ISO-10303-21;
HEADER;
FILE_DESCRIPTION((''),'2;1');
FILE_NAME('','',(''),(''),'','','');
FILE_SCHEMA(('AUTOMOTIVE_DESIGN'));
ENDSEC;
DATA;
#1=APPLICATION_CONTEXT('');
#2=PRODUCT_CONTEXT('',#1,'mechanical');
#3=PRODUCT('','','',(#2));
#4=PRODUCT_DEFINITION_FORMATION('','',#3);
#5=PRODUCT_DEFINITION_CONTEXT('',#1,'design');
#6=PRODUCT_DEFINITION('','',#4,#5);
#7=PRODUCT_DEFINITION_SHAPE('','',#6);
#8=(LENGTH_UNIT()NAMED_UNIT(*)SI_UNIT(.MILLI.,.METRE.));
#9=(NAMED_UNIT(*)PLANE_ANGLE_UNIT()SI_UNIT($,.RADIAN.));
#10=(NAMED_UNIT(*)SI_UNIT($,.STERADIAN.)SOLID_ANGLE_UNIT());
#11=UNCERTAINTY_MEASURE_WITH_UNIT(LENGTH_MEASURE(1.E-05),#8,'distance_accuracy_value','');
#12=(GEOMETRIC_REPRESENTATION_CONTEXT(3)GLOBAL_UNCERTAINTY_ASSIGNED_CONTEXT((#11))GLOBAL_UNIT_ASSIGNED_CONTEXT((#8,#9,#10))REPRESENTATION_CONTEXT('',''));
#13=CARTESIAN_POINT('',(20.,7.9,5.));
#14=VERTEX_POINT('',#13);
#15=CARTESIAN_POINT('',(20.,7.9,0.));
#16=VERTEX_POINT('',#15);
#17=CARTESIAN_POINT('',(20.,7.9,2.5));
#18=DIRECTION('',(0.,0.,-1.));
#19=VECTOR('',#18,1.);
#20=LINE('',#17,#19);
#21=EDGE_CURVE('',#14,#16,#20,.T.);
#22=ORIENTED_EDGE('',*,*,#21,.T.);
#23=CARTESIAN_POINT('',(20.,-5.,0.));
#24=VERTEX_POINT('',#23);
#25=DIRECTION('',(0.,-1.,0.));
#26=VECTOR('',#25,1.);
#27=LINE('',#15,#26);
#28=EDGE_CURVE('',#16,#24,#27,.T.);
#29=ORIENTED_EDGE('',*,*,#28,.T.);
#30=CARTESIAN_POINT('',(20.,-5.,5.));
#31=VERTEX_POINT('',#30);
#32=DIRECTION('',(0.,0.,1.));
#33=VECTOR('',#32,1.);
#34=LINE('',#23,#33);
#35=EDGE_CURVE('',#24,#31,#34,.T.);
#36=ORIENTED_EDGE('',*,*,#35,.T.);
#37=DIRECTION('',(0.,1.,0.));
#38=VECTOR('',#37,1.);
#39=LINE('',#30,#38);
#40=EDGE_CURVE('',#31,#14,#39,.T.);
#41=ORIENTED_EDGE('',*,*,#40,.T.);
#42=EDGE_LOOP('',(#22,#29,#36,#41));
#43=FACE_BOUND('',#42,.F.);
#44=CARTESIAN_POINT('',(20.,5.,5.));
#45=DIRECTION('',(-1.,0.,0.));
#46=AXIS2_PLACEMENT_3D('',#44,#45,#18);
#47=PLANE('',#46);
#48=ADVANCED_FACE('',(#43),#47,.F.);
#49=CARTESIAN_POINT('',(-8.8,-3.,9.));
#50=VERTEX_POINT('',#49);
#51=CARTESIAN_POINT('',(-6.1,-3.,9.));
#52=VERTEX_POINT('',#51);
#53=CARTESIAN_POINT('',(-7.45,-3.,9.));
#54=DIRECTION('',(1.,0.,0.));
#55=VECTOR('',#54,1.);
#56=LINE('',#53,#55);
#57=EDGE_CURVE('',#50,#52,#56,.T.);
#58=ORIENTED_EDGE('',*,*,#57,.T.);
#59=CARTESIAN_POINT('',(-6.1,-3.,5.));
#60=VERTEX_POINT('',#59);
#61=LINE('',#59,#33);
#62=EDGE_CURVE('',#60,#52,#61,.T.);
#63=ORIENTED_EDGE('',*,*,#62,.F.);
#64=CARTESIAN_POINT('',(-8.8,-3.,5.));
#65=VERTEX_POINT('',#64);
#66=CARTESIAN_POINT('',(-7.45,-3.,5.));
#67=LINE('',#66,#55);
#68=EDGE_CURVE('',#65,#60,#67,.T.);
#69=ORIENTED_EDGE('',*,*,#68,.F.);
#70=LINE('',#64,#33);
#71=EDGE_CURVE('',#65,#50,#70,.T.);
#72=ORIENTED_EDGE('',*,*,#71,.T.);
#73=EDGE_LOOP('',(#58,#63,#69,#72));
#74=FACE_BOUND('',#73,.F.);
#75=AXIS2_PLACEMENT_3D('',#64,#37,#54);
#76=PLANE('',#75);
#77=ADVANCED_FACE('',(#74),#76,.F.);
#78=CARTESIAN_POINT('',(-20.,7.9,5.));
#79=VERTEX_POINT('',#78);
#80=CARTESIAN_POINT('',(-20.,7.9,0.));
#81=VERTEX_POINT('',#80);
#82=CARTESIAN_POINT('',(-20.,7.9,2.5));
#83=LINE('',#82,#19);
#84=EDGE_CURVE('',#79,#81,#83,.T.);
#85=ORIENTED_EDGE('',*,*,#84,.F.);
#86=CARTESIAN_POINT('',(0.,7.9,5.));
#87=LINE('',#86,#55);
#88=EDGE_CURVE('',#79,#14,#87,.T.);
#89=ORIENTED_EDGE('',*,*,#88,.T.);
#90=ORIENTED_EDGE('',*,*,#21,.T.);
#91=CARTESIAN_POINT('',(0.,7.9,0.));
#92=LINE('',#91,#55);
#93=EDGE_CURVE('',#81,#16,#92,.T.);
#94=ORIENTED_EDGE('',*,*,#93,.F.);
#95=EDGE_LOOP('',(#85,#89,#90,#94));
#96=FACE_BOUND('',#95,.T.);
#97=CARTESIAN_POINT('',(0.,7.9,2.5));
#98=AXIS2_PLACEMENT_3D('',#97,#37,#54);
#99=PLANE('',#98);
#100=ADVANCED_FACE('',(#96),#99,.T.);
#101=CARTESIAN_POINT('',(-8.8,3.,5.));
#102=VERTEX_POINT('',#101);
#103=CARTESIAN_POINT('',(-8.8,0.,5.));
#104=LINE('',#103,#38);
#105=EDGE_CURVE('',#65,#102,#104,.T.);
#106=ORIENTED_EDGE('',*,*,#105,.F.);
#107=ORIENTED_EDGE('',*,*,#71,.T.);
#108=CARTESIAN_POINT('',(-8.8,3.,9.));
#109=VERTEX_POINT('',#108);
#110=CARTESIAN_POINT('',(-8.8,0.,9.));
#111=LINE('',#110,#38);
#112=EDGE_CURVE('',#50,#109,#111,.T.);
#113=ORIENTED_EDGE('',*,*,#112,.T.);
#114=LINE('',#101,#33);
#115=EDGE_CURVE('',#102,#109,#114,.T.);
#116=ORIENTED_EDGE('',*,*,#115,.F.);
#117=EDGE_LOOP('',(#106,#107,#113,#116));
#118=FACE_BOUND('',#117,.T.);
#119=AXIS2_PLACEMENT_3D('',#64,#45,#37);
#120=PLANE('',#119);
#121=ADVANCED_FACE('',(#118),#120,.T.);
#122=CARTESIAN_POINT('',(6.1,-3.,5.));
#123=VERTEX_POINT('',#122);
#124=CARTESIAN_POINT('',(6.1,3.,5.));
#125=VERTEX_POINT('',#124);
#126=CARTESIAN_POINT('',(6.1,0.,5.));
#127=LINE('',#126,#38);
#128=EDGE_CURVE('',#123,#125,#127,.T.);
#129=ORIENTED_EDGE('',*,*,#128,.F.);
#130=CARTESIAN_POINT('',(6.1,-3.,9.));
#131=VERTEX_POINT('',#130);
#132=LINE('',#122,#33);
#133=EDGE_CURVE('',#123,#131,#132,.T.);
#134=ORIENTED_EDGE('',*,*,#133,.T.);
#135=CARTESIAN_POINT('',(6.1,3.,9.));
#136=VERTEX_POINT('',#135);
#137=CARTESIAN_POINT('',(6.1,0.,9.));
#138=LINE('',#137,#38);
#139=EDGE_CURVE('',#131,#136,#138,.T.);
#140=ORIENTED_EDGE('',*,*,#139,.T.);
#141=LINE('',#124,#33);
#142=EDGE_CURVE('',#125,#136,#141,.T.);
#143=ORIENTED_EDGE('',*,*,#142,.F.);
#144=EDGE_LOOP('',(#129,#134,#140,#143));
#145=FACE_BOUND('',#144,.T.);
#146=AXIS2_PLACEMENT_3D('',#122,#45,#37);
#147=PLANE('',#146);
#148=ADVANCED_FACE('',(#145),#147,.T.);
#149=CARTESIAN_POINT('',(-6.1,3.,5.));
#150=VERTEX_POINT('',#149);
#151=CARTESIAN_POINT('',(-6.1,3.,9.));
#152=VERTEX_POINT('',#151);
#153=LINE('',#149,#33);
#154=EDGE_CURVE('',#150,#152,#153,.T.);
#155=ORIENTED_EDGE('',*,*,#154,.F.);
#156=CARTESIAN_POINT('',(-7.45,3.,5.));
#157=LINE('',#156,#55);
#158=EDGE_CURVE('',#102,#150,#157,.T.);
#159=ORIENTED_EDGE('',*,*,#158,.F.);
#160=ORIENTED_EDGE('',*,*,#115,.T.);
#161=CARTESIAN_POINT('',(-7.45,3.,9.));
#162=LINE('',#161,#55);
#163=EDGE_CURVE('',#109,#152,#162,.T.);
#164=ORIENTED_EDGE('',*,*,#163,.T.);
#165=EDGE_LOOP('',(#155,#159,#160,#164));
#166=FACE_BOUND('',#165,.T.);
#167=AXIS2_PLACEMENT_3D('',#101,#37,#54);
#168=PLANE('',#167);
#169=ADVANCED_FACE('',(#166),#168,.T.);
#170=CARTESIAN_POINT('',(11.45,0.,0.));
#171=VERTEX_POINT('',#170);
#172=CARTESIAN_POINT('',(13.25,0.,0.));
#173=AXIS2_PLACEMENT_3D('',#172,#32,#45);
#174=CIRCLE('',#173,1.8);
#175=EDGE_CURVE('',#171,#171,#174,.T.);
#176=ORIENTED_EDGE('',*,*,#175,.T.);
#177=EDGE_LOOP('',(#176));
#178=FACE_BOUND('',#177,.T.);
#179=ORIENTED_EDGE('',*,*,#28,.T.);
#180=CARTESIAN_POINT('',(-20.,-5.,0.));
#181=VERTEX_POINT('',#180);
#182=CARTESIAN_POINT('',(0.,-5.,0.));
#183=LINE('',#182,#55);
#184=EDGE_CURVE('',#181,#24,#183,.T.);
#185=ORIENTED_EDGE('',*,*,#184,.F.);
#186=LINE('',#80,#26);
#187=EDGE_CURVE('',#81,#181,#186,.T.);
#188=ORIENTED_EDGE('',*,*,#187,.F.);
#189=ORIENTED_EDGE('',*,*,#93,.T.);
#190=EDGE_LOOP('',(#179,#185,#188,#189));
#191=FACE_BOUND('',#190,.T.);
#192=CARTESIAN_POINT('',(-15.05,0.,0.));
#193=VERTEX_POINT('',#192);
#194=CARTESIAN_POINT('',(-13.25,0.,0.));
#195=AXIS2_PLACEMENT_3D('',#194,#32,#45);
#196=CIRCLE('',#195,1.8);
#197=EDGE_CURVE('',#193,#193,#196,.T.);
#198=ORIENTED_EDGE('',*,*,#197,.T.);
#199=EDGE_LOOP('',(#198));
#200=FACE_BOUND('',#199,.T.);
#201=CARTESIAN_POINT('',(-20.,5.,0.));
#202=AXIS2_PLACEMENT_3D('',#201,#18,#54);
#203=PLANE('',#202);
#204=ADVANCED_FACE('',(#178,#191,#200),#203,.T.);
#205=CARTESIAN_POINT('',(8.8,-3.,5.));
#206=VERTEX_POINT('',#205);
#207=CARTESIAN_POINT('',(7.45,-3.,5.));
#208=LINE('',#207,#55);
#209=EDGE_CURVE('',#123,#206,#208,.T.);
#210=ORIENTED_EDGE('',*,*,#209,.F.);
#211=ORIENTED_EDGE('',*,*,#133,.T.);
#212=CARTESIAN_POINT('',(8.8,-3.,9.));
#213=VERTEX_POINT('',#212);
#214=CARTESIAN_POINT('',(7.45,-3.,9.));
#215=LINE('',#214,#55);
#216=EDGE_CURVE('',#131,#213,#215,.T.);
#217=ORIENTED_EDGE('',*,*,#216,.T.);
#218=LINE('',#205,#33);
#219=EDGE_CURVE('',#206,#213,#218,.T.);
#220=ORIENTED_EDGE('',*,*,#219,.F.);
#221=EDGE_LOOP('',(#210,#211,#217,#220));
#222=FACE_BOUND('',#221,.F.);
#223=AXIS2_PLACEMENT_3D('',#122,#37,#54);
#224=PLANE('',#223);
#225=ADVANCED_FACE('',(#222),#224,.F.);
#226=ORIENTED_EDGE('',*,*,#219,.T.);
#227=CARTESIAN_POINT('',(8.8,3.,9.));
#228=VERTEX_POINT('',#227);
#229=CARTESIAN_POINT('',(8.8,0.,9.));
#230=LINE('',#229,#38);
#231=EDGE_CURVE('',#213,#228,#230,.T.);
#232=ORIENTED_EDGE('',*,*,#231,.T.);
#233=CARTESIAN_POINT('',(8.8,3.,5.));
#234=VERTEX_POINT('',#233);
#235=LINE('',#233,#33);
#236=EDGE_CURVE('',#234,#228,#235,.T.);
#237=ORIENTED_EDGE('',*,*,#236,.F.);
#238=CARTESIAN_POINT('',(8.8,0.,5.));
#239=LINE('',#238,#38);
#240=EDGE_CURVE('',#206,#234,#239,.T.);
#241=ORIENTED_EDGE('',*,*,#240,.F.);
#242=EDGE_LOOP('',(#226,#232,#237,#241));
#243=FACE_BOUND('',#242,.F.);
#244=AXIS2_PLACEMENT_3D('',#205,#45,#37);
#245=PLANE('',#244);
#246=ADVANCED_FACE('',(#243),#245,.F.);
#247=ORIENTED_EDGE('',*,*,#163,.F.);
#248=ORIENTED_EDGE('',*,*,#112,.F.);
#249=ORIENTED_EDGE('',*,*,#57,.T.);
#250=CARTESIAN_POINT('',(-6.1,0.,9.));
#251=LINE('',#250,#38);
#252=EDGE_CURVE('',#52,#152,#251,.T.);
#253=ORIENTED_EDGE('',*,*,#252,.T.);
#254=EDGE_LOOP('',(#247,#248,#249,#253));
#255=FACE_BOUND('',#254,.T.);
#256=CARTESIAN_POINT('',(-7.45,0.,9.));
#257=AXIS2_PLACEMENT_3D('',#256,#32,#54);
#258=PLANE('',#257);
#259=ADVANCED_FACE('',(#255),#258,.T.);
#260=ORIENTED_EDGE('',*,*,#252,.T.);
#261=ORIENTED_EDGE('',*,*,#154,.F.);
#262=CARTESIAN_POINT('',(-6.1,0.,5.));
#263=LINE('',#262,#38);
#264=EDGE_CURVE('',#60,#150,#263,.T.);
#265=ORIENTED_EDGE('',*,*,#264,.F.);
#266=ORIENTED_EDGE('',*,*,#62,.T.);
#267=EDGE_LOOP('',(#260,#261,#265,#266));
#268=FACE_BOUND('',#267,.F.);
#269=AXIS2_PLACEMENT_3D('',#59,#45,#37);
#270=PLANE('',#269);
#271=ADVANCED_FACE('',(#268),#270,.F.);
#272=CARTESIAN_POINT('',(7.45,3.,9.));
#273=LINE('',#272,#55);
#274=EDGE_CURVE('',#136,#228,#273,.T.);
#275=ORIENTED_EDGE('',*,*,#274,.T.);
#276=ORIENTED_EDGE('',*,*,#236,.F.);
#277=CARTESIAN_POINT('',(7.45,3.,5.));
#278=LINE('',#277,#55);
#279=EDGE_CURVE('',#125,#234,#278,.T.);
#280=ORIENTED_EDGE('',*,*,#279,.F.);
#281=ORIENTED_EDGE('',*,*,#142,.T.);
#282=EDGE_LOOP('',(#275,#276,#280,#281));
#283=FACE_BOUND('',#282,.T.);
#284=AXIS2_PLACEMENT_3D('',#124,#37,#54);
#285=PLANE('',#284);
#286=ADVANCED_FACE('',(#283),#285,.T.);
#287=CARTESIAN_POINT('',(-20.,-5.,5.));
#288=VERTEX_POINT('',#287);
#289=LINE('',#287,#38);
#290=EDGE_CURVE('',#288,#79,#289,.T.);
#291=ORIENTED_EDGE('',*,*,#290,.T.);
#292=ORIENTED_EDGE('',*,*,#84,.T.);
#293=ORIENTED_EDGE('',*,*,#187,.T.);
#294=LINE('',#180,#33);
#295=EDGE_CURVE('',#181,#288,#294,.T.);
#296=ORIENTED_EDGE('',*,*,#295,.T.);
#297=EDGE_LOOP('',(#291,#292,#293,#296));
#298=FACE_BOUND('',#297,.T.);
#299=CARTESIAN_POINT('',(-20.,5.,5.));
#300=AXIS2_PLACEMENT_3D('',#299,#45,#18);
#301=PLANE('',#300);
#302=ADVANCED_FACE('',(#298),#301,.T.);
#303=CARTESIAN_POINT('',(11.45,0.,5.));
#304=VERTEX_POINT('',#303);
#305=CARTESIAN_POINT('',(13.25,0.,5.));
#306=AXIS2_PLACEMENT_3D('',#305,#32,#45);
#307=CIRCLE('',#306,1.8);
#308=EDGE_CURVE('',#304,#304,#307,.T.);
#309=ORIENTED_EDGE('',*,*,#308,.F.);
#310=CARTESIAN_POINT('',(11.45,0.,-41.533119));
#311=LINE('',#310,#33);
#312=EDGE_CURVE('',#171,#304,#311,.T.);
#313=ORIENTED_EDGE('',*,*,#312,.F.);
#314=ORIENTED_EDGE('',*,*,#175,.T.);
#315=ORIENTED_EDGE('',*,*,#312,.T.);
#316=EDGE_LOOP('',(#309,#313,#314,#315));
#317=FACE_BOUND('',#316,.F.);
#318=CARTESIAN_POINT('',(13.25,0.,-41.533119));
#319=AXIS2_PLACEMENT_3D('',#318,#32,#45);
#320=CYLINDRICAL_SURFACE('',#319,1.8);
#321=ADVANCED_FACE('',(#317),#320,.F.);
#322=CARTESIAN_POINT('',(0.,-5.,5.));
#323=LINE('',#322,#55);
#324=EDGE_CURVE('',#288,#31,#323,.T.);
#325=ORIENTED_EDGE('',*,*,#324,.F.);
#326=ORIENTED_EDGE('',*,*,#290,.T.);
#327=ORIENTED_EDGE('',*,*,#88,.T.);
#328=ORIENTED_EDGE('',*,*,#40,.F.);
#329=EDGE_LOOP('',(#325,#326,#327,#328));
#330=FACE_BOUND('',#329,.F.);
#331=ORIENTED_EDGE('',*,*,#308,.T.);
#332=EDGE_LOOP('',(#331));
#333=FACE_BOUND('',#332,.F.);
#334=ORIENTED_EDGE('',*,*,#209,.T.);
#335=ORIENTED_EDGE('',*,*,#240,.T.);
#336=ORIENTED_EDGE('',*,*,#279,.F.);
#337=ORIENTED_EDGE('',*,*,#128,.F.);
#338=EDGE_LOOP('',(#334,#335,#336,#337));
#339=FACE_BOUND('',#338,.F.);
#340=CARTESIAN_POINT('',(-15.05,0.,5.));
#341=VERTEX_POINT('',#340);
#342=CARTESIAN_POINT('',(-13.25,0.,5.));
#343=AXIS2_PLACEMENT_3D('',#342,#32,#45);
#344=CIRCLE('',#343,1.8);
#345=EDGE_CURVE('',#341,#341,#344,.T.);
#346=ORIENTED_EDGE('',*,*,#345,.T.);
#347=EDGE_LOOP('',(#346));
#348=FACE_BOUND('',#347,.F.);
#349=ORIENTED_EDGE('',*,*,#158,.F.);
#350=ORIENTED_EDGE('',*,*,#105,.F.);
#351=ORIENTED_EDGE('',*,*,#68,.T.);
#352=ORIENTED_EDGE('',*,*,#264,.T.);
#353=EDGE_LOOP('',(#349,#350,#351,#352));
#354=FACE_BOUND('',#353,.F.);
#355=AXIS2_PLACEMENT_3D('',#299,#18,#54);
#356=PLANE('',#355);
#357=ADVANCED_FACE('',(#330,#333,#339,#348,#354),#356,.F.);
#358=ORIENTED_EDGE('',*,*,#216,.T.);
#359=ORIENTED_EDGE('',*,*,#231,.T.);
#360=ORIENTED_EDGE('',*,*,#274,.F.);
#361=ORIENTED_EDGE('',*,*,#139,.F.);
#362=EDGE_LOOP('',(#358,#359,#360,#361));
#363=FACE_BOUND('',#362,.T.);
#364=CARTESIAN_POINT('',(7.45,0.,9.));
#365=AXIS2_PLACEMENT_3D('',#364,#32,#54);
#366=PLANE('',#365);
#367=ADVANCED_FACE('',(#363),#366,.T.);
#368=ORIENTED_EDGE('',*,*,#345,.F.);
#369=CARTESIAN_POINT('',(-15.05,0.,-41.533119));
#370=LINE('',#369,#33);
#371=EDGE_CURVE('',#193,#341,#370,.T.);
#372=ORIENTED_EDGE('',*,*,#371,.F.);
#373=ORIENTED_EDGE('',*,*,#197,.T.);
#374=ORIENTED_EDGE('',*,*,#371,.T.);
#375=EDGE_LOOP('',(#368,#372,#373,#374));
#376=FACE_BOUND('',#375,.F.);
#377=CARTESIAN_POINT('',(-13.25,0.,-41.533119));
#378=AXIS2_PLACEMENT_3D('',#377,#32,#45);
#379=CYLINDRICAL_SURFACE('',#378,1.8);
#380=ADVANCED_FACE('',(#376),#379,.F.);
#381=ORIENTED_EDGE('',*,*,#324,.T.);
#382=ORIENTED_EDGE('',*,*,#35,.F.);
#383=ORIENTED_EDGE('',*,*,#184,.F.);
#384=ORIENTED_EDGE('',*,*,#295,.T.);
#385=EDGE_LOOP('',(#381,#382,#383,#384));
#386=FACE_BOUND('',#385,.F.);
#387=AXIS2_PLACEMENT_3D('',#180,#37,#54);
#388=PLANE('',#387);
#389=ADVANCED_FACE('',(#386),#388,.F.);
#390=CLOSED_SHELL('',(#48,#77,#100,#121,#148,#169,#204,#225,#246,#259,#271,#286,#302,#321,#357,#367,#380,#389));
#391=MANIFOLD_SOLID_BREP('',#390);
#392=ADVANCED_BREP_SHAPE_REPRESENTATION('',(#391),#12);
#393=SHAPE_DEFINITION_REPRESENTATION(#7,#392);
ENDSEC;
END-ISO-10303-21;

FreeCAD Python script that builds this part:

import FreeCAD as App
import Part
import Sketcher

V = App.Vector
Q = App.Units.Quantity

doc = App.newDocument("Part")
body = doc.addObject("PartDesign::Body", "Body")

# Sketch on XY plane
sketch1 = doc.addObject("Sketcher::SketchObject", "Sketch")
body.addObject(sketch1)
sketch1.AttachmentSupport = (doc.XY_Plane, [""])
sketch1.MapMode = "FlatFace"
sketch1.addGeometry([
    Part.LineSegment(V(-20, 5, 0), V(-20, -5, 0)),
    Part.LineSegment(V(-20, -5, 0), V(20, -5, 0)),
    Part.LineSegment(V(20, -5, 0), V(20, 5, 0)),
    Part.LineSegment(V(20, 5, 0), V(-20, 5, 0)),
], False)
sketch1.addConstraint([
    Sketcher.Constraint("Coincident", 0, 2, 1, 1),
    Sketcher.Constraint("Coincident", 1, 2, 2, 1),
    Sketcher.Constraint("Coincident", 2, 2, 3, 1),
    Sketcher.Constraint("Coincident", 3, 2, 0, 1),
    Sketcher.Constraint("Vertical", 0),
    Sketcher.Constraint("Horizontal", 1),
    Sketcher.Constraint("Vertical", 2),
    Sketcher.Constraint("Horizontal", 3),
    Sketcher.Constraint("Symmetric", 0, 2, 2, 2, -1, 1),
    Sketcher.Constraint("DistanceX", 1, 1, 1, 2, Q("40 mm")),
    Sketcher.Constraint("DistanceY", 0, 2, 0, 1, Q("10 mm")),
])
pad1 = doc.addObject("PartDesign::Pad", "Pad")
body.addObject(pad1)
pad1.Profile = sketch1
pad1.Length = 5

# Sketch on XY plane
sketch2 = doc.addObject("Sketcher::SketchObject", "Sketch001")
body.addObject(sketch2)
sketch2.AttachmentSupport = (doc.XY_Plane, [""])
sketch2.MapMode = "FlatFace"
sketch2.addGeometry([
    Part.Circle(V(-13.2, 0, 0), V(0, 0, 1), 1.8),
    Part.Circle(V(13.2, 0, 0), V(0, 0, 1), 1.8),
], False)
sketch2.addConstraint([
    Sketcher.Constraint("Equal", 0, 1),
    Sketcher.Constraint("Symmetric", 0, 3, 1, 3, -1, 1),
    Sketcher.Constraint("PointOnObject", 0, 3, -1),
    Sketcher.Constraint("Diameter", 0, Q("3.6 mm")),
    Sketcher.Constraint("DistanceX", 0, 3, 1, 3, Q("26.5 mm")),
])
doc.recompute()
hole = doc.addObject("PartDesign::Hole", "Hole")
body.addObject(hole)
hole.Profile = sketch2
hole.ThreadType = "None"
hole.Diameter = 3.6
hole.DepthType = "ThroughAll"
hole.Reversed = True

# Sketch on XY plane
sketch3 = doc.addObject("Sketcher::SketchObject", "Sketch002")
body.addObject(sketch3)
sketch3.AttachmentSupport = (doc.XY_Plane, [""])
sketch3.MapMode = "FlatFace"
sketch3.AttachmentOffset = App.Placement(V(0, 0, 5), App.Rotation())
sketch3.addGeometry([
    Part.LineSegment(V(-8.8, 3, 0), V(-8.8, -3, 0)),  # 0
    Part.LineSegment(V(-8.8, -3, 0), V(-6.1, -3, 0)),  # 1
    Part.LineSegment(V(-6.1, -3, 0), V(-6.1, 3, 0)),  # 2
    Part.LineSegment(V(-6.1, 3, 0), V(-8.8, 3, 0)),  # 3
    Part.LineSegment(V(6.1, 3, 0), V(6.1, -3, 0)),  # 4
    Part.LineSegment(V(6.1, -3, 0), V(8.8, -3, 0)),  # 5
    Part.LineSegment(V(8.8, -3, 0), V(8.8, 3, 0)),  # 6
    Part.LineSegment(V(8.8, 3, 0), V(6.1, 3, 0)),  # 7
], False)
sketch3.addConstraint([
    Sketcher.Constraint("Coincident", 0, 2, 1, 1),
    Sketcher.Constraint("Coincident", 1, 2, 2, 1),
    Sketcher.Constraint("Coincident", 2, 2, 3, 1),
    Sketcher.Constraint("Coincident", 3, 2, 0, 1),
    Sketcher.Constraint("Coincident", 4, 2, 5, 1),
    Sketcher.Constraint("Coincident", 5, 2, 6, 1),
    Sketcher.Constraint("Coincident", 6, 2, 7, 1),
    Sketcher.Constraint("Coincident", 7, 2, 4, 1),
    Sketcher.Constraint("Vertical", 0),
    Sketcher.Constraint("Horizontal", 1),
    Sketcher.Constraint("Vertical", 2),
    Sketcher.Constraint("Horizontal", 3),
    Sketcher.Constraint("Vertical", 4),
    Sketcher.Constraint("Horizontal", 5),
    Sketcher.Constraint("Vertical", 6),
    Sketcher.Constraint("Horizontal", 7),
    Sketcher.Constraint("Symmetric", 2, 2, 4, 2, -1, 1),
    Sketcher.Constraint("Symmetric", 0, 2, 6, 2, -1, 1),
    Sketcher.Constraint("Horizontal", 1, 2, 4, 2),
    Sketcher.Constraint("DistanceY", 0, 2, 0, 1, Q("6 mm")),
    Sketcher.Constraint("DistanceX", 1, 1, 1, 2, Q("2.7 mm")),
    Sketcher.Constraint("DistanceX", 0, 2, -1, 1, Q("8.8 mm")),
])
pad2 = doc.addObject("PartDesign::Pad", "Pad001")
body.addObject(pad2)
pad2.Profile = sketch3
pad2.Length = 4

# Sketch on XZ plane
sketch4 = doc.addObject("Sketcher::SketchObject", "Sketch003")
body.addObject(sketch4)
sketch4.AttachmentSupport = (doc.XZ_Plane, [""])
sketch4.MapMode = "FlatFace"
sketch4.AttachmentOffset = App.Placement(V(0, 0, -5), App.Rotation())
sketch4.addGeometry([
    Part.LineSegment(V(-20, 0, 0), V(-20, 5, 0)),
    Part.LineSegment(V(-20, 5, 0), V(20, 5, 0)),
    Part.LineSegment(V(20, 5, 0), V(20, 0, 0)),
    Part.LineSegment(V(20, 0, 0), V(-20, 0, 0)),
], False)
sketch4.addConstraint([
    Sketcher.Constraint("Coincident", 0, 2, 1, 1),
    Sketcher.Constraint("Coincident", 1, 2, 2, 1),
    Sketcher.Constraint("Coincident", 2, 2, 3, 1),
    Sketcher.Constraint("Coincident", 3, 2, 0, 1),
    Sketcher.Constraint("Vertical", 0),
    Sketcher.Constraint("Horizontal", 1),
    Sketcher.Constraint("Vertical", 2),
    Sketcher.Constraint("Horizontal", 3),
    Sketcher.Constraint("Symmetric", 2, 2, 3, 2, -1, 1),
    Sketcher.Constraint("DistanceX", 1, 1, 1, 2, Q("40 mm")),
    Sketcher.Constraint("DistanceY", 0, 1, 0, 2, Q("5 mm")),
])
pad3 = doc.addObject("PartDesign::Pad", "Pad002")
body.addObject(pad3)
pad3.Profile = sketch4
pad3.Length = 2.9
pad3.Reversed = True

doc.recompute()
